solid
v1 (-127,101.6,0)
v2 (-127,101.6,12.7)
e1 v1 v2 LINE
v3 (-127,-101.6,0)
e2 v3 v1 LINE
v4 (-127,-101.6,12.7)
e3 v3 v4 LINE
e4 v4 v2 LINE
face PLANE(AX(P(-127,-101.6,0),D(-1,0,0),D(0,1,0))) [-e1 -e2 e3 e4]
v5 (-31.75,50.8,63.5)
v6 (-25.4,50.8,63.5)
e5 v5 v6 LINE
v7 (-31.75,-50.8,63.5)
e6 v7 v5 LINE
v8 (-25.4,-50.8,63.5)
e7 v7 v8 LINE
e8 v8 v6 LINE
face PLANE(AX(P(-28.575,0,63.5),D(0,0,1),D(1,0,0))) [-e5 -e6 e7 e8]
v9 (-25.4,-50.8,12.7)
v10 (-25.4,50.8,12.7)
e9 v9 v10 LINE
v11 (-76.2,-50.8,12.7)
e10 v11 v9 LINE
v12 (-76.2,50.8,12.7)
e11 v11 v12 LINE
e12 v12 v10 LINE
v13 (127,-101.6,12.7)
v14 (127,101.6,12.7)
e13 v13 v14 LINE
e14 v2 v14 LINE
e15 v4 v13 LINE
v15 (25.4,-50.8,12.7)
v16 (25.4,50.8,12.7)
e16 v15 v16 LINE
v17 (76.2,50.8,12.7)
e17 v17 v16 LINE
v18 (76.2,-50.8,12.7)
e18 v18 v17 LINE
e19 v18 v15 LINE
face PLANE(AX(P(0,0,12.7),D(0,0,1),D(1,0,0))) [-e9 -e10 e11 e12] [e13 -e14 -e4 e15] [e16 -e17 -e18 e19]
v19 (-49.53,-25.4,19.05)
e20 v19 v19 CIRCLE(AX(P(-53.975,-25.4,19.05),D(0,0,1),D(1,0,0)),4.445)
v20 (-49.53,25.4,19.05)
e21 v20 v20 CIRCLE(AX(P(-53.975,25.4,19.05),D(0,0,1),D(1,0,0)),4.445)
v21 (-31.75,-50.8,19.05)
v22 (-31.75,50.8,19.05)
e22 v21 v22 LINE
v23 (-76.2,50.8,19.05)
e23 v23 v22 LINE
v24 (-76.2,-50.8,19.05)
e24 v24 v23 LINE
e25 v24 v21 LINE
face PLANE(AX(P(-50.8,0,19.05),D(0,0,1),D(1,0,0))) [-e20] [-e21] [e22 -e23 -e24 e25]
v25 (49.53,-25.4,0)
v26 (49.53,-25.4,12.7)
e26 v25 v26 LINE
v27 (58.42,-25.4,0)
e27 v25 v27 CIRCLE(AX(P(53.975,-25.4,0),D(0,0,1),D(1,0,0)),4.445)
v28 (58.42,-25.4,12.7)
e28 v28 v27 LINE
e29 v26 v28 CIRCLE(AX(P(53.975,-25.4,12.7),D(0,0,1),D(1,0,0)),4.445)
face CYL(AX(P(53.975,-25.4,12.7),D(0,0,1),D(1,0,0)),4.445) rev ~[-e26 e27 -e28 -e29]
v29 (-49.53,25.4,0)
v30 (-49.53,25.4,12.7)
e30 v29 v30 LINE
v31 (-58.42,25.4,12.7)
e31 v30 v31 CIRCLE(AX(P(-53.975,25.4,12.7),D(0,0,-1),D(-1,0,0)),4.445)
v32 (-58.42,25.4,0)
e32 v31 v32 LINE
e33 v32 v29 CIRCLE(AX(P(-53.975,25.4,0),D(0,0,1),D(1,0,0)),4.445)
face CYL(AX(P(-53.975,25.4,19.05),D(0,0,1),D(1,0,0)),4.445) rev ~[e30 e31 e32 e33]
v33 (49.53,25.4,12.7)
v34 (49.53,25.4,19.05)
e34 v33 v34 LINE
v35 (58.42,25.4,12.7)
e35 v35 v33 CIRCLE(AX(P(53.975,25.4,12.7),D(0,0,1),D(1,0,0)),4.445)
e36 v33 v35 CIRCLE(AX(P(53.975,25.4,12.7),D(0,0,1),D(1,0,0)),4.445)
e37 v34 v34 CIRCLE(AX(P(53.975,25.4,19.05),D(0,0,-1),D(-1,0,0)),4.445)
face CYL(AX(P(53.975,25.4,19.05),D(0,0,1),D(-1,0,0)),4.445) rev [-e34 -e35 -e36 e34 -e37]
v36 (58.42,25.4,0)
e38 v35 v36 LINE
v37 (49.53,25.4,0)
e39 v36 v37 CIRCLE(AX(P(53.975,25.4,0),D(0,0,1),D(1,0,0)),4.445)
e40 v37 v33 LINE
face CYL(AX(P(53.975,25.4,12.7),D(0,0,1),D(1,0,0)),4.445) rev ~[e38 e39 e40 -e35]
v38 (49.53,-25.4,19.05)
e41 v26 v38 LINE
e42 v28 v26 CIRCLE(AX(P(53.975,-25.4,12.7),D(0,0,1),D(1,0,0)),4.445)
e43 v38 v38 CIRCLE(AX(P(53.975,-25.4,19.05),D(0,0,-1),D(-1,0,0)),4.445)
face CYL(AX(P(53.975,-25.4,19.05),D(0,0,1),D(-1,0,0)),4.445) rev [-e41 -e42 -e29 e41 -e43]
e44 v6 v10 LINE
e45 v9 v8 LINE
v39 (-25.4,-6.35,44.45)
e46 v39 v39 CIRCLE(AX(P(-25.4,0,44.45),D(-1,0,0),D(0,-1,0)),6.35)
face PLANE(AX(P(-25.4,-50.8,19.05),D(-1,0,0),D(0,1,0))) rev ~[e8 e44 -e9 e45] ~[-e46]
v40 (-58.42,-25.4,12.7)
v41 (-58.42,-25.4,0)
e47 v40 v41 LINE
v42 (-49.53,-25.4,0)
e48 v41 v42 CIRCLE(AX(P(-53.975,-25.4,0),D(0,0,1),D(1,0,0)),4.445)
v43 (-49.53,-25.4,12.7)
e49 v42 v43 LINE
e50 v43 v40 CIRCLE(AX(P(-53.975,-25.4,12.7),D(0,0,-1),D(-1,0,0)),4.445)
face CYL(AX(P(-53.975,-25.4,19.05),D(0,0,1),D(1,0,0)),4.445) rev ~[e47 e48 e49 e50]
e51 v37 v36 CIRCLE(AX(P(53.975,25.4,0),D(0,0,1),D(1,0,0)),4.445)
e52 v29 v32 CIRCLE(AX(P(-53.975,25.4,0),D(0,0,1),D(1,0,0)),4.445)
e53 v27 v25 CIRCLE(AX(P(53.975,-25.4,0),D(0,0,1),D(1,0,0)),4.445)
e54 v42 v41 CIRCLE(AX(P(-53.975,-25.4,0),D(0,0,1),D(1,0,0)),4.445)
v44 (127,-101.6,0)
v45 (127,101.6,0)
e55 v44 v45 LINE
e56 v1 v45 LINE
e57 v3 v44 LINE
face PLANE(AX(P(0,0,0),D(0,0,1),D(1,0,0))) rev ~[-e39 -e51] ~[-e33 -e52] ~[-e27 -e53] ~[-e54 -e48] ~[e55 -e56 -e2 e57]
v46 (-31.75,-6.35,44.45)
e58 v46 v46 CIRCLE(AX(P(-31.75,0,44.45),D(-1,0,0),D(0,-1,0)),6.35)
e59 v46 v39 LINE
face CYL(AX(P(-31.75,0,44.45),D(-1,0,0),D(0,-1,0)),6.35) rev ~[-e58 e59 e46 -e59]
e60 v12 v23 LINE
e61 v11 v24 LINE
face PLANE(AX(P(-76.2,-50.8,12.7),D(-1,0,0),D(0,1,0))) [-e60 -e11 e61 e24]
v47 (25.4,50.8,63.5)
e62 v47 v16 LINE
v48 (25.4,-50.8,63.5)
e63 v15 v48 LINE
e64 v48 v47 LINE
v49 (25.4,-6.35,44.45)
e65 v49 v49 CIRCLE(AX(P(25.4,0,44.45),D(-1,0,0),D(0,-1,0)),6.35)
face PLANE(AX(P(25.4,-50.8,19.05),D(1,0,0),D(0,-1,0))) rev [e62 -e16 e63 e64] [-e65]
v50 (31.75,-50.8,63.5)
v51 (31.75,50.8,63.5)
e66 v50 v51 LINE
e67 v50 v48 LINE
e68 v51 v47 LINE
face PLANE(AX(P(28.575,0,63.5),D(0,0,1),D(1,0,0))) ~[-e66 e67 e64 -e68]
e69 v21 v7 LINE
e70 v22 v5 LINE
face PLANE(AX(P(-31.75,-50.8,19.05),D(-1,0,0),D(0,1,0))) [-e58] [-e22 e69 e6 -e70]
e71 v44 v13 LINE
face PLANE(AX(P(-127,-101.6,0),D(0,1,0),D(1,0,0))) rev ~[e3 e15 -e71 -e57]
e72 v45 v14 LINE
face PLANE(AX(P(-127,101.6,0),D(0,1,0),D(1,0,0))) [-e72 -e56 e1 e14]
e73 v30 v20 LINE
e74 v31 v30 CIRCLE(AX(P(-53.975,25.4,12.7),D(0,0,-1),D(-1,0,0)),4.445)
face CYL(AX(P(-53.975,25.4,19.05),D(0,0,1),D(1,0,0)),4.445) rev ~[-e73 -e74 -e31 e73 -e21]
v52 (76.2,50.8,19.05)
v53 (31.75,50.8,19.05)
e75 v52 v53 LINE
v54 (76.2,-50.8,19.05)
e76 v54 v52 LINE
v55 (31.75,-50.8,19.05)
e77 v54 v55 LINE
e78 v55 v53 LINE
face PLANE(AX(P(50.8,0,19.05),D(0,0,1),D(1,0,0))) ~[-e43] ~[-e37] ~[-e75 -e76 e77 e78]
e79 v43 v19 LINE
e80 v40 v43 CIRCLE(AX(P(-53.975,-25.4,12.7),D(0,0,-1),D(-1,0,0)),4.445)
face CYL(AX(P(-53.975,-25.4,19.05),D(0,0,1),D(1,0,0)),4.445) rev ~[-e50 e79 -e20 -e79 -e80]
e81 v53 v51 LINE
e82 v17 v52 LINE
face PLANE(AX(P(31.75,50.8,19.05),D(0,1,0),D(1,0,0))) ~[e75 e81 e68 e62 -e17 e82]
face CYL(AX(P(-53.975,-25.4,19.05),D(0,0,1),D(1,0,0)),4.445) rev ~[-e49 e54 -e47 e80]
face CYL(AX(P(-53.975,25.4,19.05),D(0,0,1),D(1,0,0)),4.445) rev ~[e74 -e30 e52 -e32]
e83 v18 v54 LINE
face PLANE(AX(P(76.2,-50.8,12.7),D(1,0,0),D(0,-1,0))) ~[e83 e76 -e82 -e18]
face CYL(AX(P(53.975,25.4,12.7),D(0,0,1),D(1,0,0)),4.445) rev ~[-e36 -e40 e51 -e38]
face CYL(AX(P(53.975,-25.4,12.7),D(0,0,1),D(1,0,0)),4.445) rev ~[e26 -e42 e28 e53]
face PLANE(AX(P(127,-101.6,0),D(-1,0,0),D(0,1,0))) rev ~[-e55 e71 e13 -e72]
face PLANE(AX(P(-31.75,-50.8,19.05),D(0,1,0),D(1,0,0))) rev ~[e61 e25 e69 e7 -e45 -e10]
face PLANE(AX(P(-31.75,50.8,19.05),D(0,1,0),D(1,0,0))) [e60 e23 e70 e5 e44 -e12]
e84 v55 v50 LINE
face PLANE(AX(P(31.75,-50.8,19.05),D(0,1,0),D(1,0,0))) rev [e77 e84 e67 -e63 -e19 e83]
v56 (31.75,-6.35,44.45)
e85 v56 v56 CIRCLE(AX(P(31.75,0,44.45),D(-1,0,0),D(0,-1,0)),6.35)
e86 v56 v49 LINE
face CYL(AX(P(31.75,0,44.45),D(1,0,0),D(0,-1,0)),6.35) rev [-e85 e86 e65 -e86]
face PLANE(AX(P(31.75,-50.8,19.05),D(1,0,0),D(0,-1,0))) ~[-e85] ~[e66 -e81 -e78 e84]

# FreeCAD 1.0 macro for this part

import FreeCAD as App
import Part
import Sketcher
from FreeCAD import Vector
Q = App.Units.Quantity


def add_polygon(sketch, points):
    """Adds a closed chain of lines whose ends are joined by coincident constraints."""
    first, n = sketch.GeometryCount, len(points)
    for a, b in zip(points, points[1:] + points[:1]):
        sketch.addGeometry(Part.LineSegment(App.Vector(*a, 0), App.Vector(*b, 0)), False)
    for i in range(n):
        sketch.addConstraint(Sketcher.Constraint("Coincident", first + i, 2, first + (i + 1) % n, 1))

doc = App.newDocument("Part")
body = doc.addObject("PartDesign::Body", "Body")

# Sketch on XY plane
sketch1 = doc.addObject("Sketcher::SketchObject", "Sketch")
body.addObject(sketch1)
sketch1.AttachmentSupport = (doc.XY_Plane, [""])
sketch1.MapMode = "FlatFace"
add_polygon(sketch1, [(-127, 102), (-127, -102), (127, -102), (127, 102)])  # lines 0-3
sketch1.addConstraint([
    Sketcher.Constraint("Vertical", 0),
    Sketcher.Constraint("Horizontal", 1),
    Sketcher.Constraint("Vertical", 2),
    Sketcher.Constraint("Horizontal", 3),
    Sketcher.Constraint("Symmetric", 0, 2, 2, 2, -1, 1),
    Sketcher.Constraint("DistanceX", 1, 1, 1, 2, Q("10 in")),
    Sketcher.Constraint("DistanceY", 0, 2, 0, 1, Q("8 in")),
])
pad1 = doc.addObject("PartDesign::Pad", "Pad")
body.addObject(pad1)
pad1.Profile = sketch1
pad1.Length = Q("0.5 in")

# Sketch on XY plane
sketch2 = doc.addObject("Sketcher::SketchObject", "Sketch001")
body.addObject(sketch2)
sketch2.AttachmentSupport = (doc.XY_Plane, [""])
sketch2.MapMode = "FlatFace"
sketch2.AttachmentOffset = App.Placement(Vector(0, 0, 0.5 * 25.4), App.Rotation())
sketch2.addGeometry([
    Part.Circle(Vector(-54, 25.4, 0), Vector(0, 0, 1), 4.4),
    Part.Circle(Vector(-54, -25.4, 0), Vector(0, 0, 1), 4.4),
    Part.Circle(Vector(54, -25.4, 0), Vector(0, 0, 1), 4.4),
    Part.Circle(Vector(54, 25.4, 0), Vector(0, 0, 1), 4.4),
], False)
sketch2.addConstraint([
    Sketcher.Constraint("Equal", 0, 1),
    Sketcher.Constraint("Equal", 1, 2),
    Sketcher.Constraint("Equal", 2, 3),
    Sketcher.Constraint("Symmetric", 0, 3, 2, 3, -1, 1),
    Sketcher.Constraint("Symmetric", 1, 3, 3, 3, -1, 1),
    Sketcher.Constraint("Symmetric", 1, 3, 2, 3, -2),
    Sketcher.Constraint("Diameter", 0, Q("0.35 in")),
    Sketcher.Constraint("DistanceY", -1, 1, 0, 3, Q("1 in")),
    Sketcher.Constraint("DistanceX", 1, 3, 2, 3, Q("4.25 in")),
])
pocket1 = doc.addObject("PartDesign::Pocket", "Pocket")
body.addObject(pocket1)
pocket1.Profile = sketch2
pocket1.Length = Q("1 in")

# Sketch on XY plane
sketch3 = doc.addObject("Sketcher::SketchObject", "Sketch002")
body.addObject(sketch3)
sketch3.AttachmentSupport = (doc.XY_Plane, [""])
sketch3.MapMode = "FlatFace"
sketch3.AttachmentOffset = App.Placement(Vector(0, 0, 0.5 * 25.4), App.Rotation())
add_polygon(sketch3, [(-76, 51), (-76, -51), (-25, -51), (-25, 51)])  # lines 0-3
sketch3.addConstraint([
    Sketcher.Constraint("Vertical", 0),
    Sketcher.Constraint("Horizontal", 1),
    Sketcher.Constraint("Vertical", 2),
    Sketcher.Constraint("Horizontal", 3),
    Sketcher.Constraint("DistanceX", 1, 1, 1, 2, Q("2 in")),
    Sketcher.Constraint("DistanceY", 0, 2, 0, 1, Q("4 in")),
    Sketcher.Constraint("DistanceX", 0, 2, -1, 1, Q("3 in")),
    Sketcher.Constraint("DistanceY", 0, 2, -1, 1, Q("2 in")),
])
pad2 = doc.addObject("PartDesign::Pad", "Pad001")
body.addObject(pad2)
pad2.Profile = sketch3
pad2.Length = Q("0.25 in")

# Sketch on XY plane
sketch4 = doc.addObject("Sketcher::SketchObject", "Sketch003")
body.addObject(sketch4)
sketch4.AttachmentSupport = (doc.XY_Plane, [""])
sketch4.MapMode = "FlatFace"
sketch4.AttachmentOffset = App.Placement(Vector(0, 0, 0.75 * 25.4), App.Rotation())
add_polygon(sketch4, [(-32, 51), (-32, -51), (-25, -51), (-25, 51)])  # lines 0-3
sketch4.addConstraint([
    Sketcher.Constraint("Vertical", 0),
    Sketcher.Constraint("Horizontal", 1),
    Sketcher.Constraint("Vertical", 2),
    Sketcher.Constraint("Horizontal", 3),
    Sketcher.Constraint("DistanceY", 0, 2, 0, 1, Q("4 in")),
    Sketcher.Constraint("DistanceY", 0, 2, -1, 1, Q("2 in")),
    Sketcher.Constraint("DistanceX", 1, 2, -1, 1, Q("1 in")),
    Sketcher.Constraint("DistanceX", 1, 1, 1, 2, Q("0.25 in")),
])
pad3 = doc.addObject("PartDesign::Pad", "Pad002")
body.addObject(pad3)
pad3.Profile = sketch4
pad3.Length = Q("1.75 in")

# Sketch on XY plane
sketch5 = doc.addObject("Sketcher::SketchObject", "Sketch004")
body.addObject(sketch5)
sketch5.AttachmentSupport = (doc.XY_Plane, [""])
sketch5.MapMode = "FlatFace"
sketch5.AttachmentOffset = App.Placement(Vector(0, 0, 0.75 * 25.4), App.Rotation())
sketch5.addGeometry([
    Part.Circle(Vector(-54, 25.4, 0), Vector(0, 0, 1), 4.4),
    Part.Circle(Vector(-54, -25.4, 0), Vector(0, 0, 1), 4.4),
], False)
sketch5.addConstraint([
    Sketcher.Constraint("Equal", 0, 1),
    Sketcher.Constraint("Symmetric", 0, 3, 1, 3, -1),
    Sketcher.Constraint("Diameter", 0, Q("0.35 in")),
    Sketcher.Constraint("DistanceY", -1, 1, 0, 3, Q("1 in")),
    Sketcher.Constraint("DistanceX", 0, 3, -1, 1, Q("2.125 in")),
])
pocket2 = doc.addObject("PartDesign::Pocket", "Pocket001")
body.addObject(pocket2)
pocket2.Profile = sketch5
pocket2.Length = Q("1 in")

# Sketch on YZ plane
sketch6 = doc.addObject("Sketcher::SketchObject", "Sketch005")
body.addObject(sketch6)
sketch6.AttachmentSupport = (doc.YZ_Plane, [""])
sketch6.MapMode = "FlatFace"
sketch6.AttachmentOffset = App.Placement(Vector(0, 0, -1.25 * 25.4), App.Rotation())
sketch6.addGeometry(Part.Circle(Vector(0, 44, 0), Vector(0, 0, 1), 6), False)
sketch6.addConstraint([
    Sketcher.Constraint("PointOnObject", 0, 3, -2),
    Sketcher.Constraint("Diameter", 0, Q("0.5 in")),
    Sketcher.Constraint("DistanceY", -1, 1, 0, 3, Q("1.75 in")),
])
pocket3 = doc.addObject("PartDesign::Pocket", "Pocket002")
body.addObject(pocket3)
pocket3.Profile = sketch6
pocket3.Length = Q("1 in")
pocket3.Reversed = True
body2 = doc.addObject("PartDesign::Body", "Body001")
doc.recompute()

body2.BaseFeature = body
doc.recompute()

mirroring = doc.addObject("Part::Mirroring", "Mirroring")
mirroring.Source = body
mirroring.Base = Vector(0, 0, 0)
mirroring.Normal = Vector(1, 0, 0)
body3 = doc.addObject("PartDesign::Body", "Body002")
body3.BaseFeature = mirroring
boolean = doc.addObject("PartDesign::Boolean", "Boolean")
body2.addObject(boolean)
boolean.Type = "Fuse"
boolean.addObjects([body3])
doc.recompute()
mirroring.Visibility = False

doc.recompute()
